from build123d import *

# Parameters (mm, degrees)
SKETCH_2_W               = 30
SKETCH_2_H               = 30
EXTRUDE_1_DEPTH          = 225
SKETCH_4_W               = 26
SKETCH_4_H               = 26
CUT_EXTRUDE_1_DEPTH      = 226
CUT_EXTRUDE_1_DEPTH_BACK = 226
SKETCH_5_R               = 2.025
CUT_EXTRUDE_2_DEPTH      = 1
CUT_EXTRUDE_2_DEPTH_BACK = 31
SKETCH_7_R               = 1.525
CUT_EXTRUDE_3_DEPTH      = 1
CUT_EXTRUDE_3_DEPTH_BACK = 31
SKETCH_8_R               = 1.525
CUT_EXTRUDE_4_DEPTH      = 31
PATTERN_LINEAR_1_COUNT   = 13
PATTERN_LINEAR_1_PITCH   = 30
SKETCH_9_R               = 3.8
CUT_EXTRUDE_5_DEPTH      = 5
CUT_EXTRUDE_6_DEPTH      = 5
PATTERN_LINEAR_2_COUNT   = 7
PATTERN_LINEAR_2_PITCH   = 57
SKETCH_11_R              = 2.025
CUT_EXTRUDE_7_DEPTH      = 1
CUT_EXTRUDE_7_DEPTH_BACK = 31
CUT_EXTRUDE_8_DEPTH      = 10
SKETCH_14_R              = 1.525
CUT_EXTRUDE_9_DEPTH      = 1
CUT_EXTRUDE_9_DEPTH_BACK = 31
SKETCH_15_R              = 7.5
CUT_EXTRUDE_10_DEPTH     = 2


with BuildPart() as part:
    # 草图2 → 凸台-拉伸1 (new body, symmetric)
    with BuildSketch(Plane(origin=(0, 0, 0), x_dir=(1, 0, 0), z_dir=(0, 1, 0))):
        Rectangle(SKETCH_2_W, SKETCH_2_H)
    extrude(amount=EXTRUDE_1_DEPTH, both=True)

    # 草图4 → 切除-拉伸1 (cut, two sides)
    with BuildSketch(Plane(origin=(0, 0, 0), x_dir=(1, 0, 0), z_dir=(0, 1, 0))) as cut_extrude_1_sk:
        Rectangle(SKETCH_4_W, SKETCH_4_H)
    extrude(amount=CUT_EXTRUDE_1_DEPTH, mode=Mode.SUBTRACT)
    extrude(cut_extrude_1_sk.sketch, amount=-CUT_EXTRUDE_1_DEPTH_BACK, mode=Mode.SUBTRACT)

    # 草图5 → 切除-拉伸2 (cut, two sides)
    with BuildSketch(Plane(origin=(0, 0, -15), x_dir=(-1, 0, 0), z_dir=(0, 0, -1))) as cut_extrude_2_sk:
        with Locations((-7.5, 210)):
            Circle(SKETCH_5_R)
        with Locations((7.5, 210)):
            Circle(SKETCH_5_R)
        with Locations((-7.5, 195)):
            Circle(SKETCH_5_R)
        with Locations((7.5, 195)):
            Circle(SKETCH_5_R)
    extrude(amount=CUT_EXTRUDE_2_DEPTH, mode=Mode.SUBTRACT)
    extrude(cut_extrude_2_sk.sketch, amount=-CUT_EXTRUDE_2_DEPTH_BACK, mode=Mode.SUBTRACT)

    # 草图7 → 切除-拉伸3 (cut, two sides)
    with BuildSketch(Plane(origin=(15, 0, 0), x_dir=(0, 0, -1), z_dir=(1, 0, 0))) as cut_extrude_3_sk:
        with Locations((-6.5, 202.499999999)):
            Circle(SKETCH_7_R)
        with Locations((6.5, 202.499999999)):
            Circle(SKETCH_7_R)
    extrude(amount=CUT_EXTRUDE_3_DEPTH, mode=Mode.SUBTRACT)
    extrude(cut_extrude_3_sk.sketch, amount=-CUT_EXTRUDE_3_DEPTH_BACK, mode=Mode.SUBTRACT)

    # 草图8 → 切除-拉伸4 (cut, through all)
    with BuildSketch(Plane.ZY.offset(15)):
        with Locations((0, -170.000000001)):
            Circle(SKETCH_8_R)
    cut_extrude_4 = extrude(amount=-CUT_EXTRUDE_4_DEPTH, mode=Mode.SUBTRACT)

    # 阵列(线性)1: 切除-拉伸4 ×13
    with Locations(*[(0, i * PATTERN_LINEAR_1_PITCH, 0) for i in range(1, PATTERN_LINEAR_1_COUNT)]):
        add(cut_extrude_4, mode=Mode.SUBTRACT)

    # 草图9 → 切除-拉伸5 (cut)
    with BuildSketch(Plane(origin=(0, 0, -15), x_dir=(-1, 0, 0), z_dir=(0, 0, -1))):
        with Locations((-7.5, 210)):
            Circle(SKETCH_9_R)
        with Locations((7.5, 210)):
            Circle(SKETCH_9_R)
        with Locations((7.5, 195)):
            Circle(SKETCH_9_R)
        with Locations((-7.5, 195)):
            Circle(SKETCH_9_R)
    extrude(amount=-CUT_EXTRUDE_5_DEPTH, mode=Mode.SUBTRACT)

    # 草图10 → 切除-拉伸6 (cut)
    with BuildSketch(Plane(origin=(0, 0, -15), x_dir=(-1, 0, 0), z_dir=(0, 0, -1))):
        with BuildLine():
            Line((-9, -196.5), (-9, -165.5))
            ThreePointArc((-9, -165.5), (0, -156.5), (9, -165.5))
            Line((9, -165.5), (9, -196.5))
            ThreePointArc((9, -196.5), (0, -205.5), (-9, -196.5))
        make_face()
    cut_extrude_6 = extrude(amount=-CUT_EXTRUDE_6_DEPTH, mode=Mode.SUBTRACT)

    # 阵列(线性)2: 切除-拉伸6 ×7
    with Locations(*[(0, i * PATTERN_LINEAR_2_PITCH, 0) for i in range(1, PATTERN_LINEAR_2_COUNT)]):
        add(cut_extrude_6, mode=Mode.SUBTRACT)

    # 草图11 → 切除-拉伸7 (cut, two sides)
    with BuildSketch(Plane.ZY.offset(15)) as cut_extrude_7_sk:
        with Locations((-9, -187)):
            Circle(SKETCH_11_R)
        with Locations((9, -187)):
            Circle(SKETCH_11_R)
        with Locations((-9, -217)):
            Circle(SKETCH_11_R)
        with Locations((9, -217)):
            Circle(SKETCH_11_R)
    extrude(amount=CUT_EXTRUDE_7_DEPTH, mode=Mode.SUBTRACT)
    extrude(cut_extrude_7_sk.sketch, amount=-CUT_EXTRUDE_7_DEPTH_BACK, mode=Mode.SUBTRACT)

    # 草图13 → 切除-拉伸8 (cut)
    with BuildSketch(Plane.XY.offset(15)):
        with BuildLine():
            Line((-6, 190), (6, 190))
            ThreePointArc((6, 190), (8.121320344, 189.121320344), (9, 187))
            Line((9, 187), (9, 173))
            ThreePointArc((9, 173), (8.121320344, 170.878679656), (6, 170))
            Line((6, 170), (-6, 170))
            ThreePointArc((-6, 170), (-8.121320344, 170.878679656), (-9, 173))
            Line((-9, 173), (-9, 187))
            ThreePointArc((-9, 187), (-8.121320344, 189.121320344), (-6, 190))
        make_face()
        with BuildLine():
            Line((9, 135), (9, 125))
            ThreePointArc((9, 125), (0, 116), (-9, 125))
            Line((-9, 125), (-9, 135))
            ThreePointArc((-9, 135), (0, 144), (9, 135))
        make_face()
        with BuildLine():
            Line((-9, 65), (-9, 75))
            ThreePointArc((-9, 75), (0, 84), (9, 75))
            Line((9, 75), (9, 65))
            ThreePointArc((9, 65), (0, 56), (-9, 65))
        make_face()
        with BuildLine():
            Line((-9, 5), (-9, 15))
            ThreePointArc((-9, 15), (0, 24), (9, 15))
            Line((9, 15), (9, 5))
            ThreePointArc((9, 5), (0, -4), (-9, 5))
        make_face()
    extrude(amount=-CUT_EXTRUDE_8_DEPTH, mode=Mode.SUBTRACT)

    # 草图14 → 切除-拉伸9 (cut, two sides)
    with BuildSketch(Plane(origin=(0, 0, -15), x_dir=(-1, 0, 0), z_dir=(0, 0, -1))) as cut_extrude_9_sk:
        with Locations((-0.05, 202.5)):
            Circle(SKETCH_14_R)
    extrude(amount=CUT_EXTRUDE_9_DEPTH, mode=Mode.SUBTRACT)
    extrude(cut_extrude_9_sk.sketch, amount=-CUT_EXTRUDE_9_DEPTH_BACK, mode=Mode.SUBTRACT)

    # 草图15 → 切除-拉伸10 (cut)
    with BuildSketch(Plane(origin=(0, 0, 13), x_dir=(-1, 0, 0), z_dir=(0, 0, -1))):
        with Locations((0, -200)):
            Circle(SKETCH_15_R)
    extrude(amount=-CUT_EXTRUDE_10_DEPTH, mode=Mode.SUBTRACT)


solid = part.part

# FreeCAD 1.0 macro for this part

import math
import FreeCAD as App
import Part
import Sketcher
Q = App.Units.Quantity


def add_polygon(sketch, points):
    """Adds a closed chain of lines whose ends are joined by coincident constraints."""
    first, n = sketch.GeometryCount, len(points)
    for a, b in zip(points, points[1:] + points[:1]):
        sketch.addGeometry(Part.LineSegment(App.Vector(*a, 0), App.Vector(*b, 0)), False)
    for i in range(n):
        sketch.addConstraint(Sketcher.Constraint("Coincident", first + i, 2, first + (i + 1) % n, 1))

doc = App.newDocument("Part")
body = doc.addObject("PartDesign::Body", "Body")

# Sketch on XZ plane
sketch1 = body.newObject("Sketcher::SketchObject", "Sketch")
sketch1.AttachmentSupport = (doc.getObject("XZ_Plane"), [""])
sketch1.MapMode = "FlatFace"
add_polygon(sketch1, [(-15, -15), (-15, 15), (15, 15), (15, -15)])  # lines 0-3
sketch1.addConstraint([
    Sketcher.Constraint("Vertical", 0),
    Sketcher.Constraint("Horizontal", 1),
    Sketcher.Constraint("Vertical", 2),
    Sketcher.Constraint("Horizontal", 3),
    Sketcher.Constraint("Symmetric", 0, 2, 2, 2, -1, 1),
    Sketcher.Constraint("Equal", 3, 0),
    Sketcher.Constraint("DistanceX", 1, 1, 1, 2, Q("30 mm")),
])
pad1 = body.newObject("PartDesign::Pad", "Pad")
pad1.Profile = sketch1
pad1.Length = 450
pad1.Midplane = True

# Sketch on XZ plane
sketch2 = body.newObject("Sketcher::SketchObject", "Sketch001")
sketch2.AttachmentSupport = (doc.getObject("XZ_Plane"), [""])
sketch2.MapMode = "FlatFace"
add_polygon(sketch2, [(-13, -13), (-13, 13), (13, 13), (13, -13)])  # lines 0-3
sketch2.addConstraint([
    Sketcher.Constraint("Vertical", 0),
    Sketcher.Constraint("Horizontal", 1),
    Sketcher.Constraint("Vertical", 2),
    Sketcher.Constraint("Horizontal", 3),
    Sketcher.Constraint("Symmetric", 0, 2, 2, 2, -1, 1),
    Sketcher.Constraint("Equal", 3, 0),
    Sketcher.Constraint("DistanceX", 1, 1, 1, 2, Q("26 mm")),
])
pocket1 = body.newObject("PartDesign::Pocket", "Pocket")
pocket1.Profile = sketch2
pocket1.Type = "ThroughAll"
pocket1.Midplane = True

# Sketch on XY plane
sketch3 = body.newObject("Sketcher::SketchObject", "Sketch002")
sketch3.AttachmentSupport = (doc.getObject("XY_Plane"), [""])
sketch3.MapMode = "FlatFace"
sketch3.AttachmentOffset = App.Placement(App.Vector(0, 0, -15), App.Rotation())
sketch3.addGeometry([
    Part.Circle(App.Vector(7.5, 210, 0), App.Vector(0, 0, 1), 2.025),
    Part.Circle(App.Vector(-7.5, 210, 0), App.Vector(0, 0, 1), 2.025),
    Part.Circle(App.Vector(7.5, 195, 0), App.Vector(0, 0, 1), 2.025),
    Part.Circle(App.Vector(-7.5, 195, 0), App.Vector(0, 0, 1), 2.025),
], False)
sketch3.addConstraint([
    Sketcher.Constraint("Equal", 0, 1),
    Sketcher.Constraint("Equal", 1, 2),
    Sketcher.Constraint("Equal", 2, 3),
    Sketcher.Constraint("Symmetric", 0, 3, 1, 3, -2),
    Sketcher.Constraint("Symmetric", 2, 3, 3, 3, -2),
    Sketcher.Constraint("Vertical", 0, 3, 2, 3),
    Sketcher.Constraint("Diameter", 0, Q("4.05 mm")),
    Sketcher.Constraint("DistanceY", -1, 1, 0, 3, Q("210 mm")),
    Sketcher.Constraint("DistanceY", -1, 1, 2, 3, Q("195 mm")),
    Sketcher.Constraint("DistanceX", 1, 3, 0, 3, Q("15 mm")),
])
pocket2 = body.newObject("PartDesign::Pocket", "Pocket001")
pocket2.Profile = sketch3
pocket2.Type = "ThroughAll"
pocket2.Midplane = True

# Sketch on YZ plane
sketch4 = body.newObject("Sketcher::SketchObject", "Sketch003")
sketch4.AttachmentSupport = (doc.getObject("YZ_Plane"), [""])
sketch4.MapMode = "FlatFace"
sketch4.AttachmentOffset = App.Placement(App.Vector(0, 0, 15), App.Rotation())
sketch4.addGeometry([
    Part.Circle(App.Vector(202.5, 6.5, 0), App.Vector(0, 0, 1), 1.525),
    Part.Circle(App.Vector(202.5, -6.5, 0), App.Vector(0, 0, 1), 1.525),
], False)
sketch4.addConstraint([
    Sketcher.Constraint("Equal", 0, 1),
    Sketcher.Constraint("Symmetric", 0, 3, 1, 3, -1),
    Sketcher.Constraint("Diameter", 0, Q("3.05 mm")),
    Sketcher.Constraint("DistanceY", 1, 3, 0, 3, Q("13 mm")),
    Sketcher.Constraint("DistanceX", -1, 1, 0, 3, Q("202.5 mm")),
])
pocket3 = body.newObject("PartDesign::Pocket", "Pocket002")
pocket3.Profile = sketch4
pocket3.Type = "ThroughAll"
pocket3.Midplane = True

# Sketch on YZ plane
sketch5 = body.newObject("Sketcher::SketchObject", "Sketch004")
sketch5.AttachmentSupport = (doc.getObject("YZ_Plane"), [""])
sketch5.MapMode = "FlatFace"
sketch5.AttachmentOffset = App.Placement(App.Vector(0, 0, -15), App.Rotation())
sketch5.addGeometry(Part.Circle(App.Vector(-170, 0, 0), App.Vector(0, 0, 1), 1.525), False)
sketch5.addConstraint([
    Sketcher.Constraint("PointOnObject", 0, 3, -1),
    Sketcher.Constraint("Diameter", 0, Q("3.05 mm")),
    Sketcher.Constraint("DistanceX", 0, 3, -1, 1, Q("170 mm")),
])
pocket4 = body.newObject("PartDesign::Pocket", "Pocket003")
pocket4.Profile = sketch5
pocket4.Type = "ThroughAll"
pocket4.Reversed = True
doc.recompute()

linearpattern = body.newObject("PartDesign::LinearPattern", "LinearPattern")
linearpattern.Originals = [pocket4]
linearpattern.Direction = (doc.getObject("Y_Axis"), [""])
linearpattern.Mode = "offset"
linearpattern.Offset = 30
linearpattern.Occurrences = 13
body.Tip = linearpattern

# Sketch on XY plane
sketch6 = body.newObject("Sketcher::SketchObject", "Sketch005")
sketch6.AttachmentSupport = (doc.getObject("XY_Plane"), [""])
sketch6.MapMode = "FlatFace"
sketch6.AttachmentOffset = App.Placement(App.Vector(0, 0, -15), App.Rotation())
sketch6.addGeometry([
    Part.Circle(App.Vector(7.5, 210, 0), App.Vector(0, 0, 1), 3.8),
    Part.Circle(App.Vector(-7.5, 210, 0), App.Vector(0, 0, 1), 3.8),
    Part.Circle(App.Vector(-7.5, 195, 0), App.Vector(0, 0, 1), 3.8),
    Part.Circle(App.Vector(7.5, 195, 0), App.Vector(0, 0, 1), 3.8),
], False)
sketch6.addConstraint([
    Sketcher.Constraint("Equal", 0, 1),
    Sketcher.Constraint("Equal", 1, 2),
    Sketcher.Constraint("Equal", 2, 3),
    Sketcher.Constraint("Symmetric", 0, 3, 1, 3, -2),
    Sketcher.Constraint("Symmetric", 2, 3, 3, 3, -2),
    Sketcher.Constraint("Vertical", 1, 3, 2, 3),
    Sketcher.Constraint("Diameter", 0, Q("7.6 mm")),
    Sketcher.Constraint("DistanceY", -1, 1, 0, 3, Q("210 mm")),
    Sketcher.Constraint("DistanceY", -1, 1, 2, 3, Q("195 mm")),
    Sketcher.Constraint("DistanceX", 1, 3, 0, 3, Q("15 mm")),
])
pocket5 = body.newObject("PartDesign::Pocket", "Pocket004")
pocket5.Profile = sketch6
pocket5.Length = 5
pocket5.Reversed = True

# Sketch on XY plane
sketch7 = body.newObject("Sketcher::SketchObject", "Sketch006")
sketch7.AttachmentSupport = (doc.getObject("XY_Plane"), [""])
sketch7.MapMode = "FlatFace"
sketch7.AttachmentOffset = App.Placement(App.Vector(0, 0, -15), App.Rotation())
sketch7.addGeometry([
    Part.LineSegment(App.Vector(9, -165.5, 0), App.Vector(9, -196.5, 0)),
    Part.ArcOfCircle(Part.Circle(App.Vector(0, -196.5, 0), App.Vector(0, 0, 1), 9), math.radians(180), math.radians(360)),
    Part.LineSegment(App.Vector(-9, -196.5, 0), App.Vector(-9, -165.5, 0)),
    Part.ArcOfCircle(Part.Circle(App.Vector(0, -165.5, 0), App.Vector(0, 0, 1), 9), math.radians(0), math.radians(180)),
], False)
sketch7.addConstraint([
    Sketcher.Constraint("Tangent", 0, 2, 1, 2),
    Sketcher.Constraint("Tangent", 1, 1, 2, 1),
    Sketcher.Constraint("Tangent", 2, 2, 3, 2),
    Sketcher.Constraint("Tangent", 3, 1, 0, 1),
    Sketcher.Constraint("Vertical", 0),
    Sketcher.Constraint("Vertical", 2),
    Sketcher.Constraint("PointOnObject", 1, 3, -2),
    Sketcher.Constraint("Radius", 1, Q("9 mm")),
    Sketcher.Constraint("DistanceY", 0, 2, 0, 1, Q("31 mm")),
    Sketcher.Constraint("DistanceY", 1, 3, -1, 1, Q("196.5 mm")),
])
pocket6 = body.newObject("PartDesign::Pocket", "Pocket005")
pocket6.Profile = sketch7
pocket6.Length = 5
pocket6.Reversed = True
doc.recompute()

linearpattern2 = body.newObject("PartDesign::LinearPattern", "LinearPattern001")
linearpattern2.Originals = [pocket6]
linearpattern2.Direction = (doc.getObject("Y_Axis"), [""])
linearpattern2.Mode = "offset"
linearpattern2.Offset = 57
linearpattern2.Occurrences = 7
body.Tip = linearpattern2

# Sketch on YZ plane
sketch8 = body.newObject("Sketcher::SketchObject", "Sketch007")
sketch8.AttachmentSupport = (doc.getObject("YZ_Plane"), [""])
sketch8.MapMode = "FlatFace"
sketch8.AttachmentOffset = App.Placement(App.Vector(0, 0, -15), App.Rotation())
sketch8.addGeometry([
    Part.Circle(App.Vector(-187, -9, 0), App.Vector(0, 0, 1), 2.025),
    Part.Circle(App.Vector(-187, 9, 0), App.Vector(0, 0, 1), 2.025),
    Part.Circle(App.Vector(-217, -9, 0), App.Vector(0, 0, 1), 2.025),
    Part.Circle(App.Vector(-217, 9, 0), App.Vector(0, 0, 1), 2.025),
], False)
sketch8.addConstraint([
    Sketcher.Constraint("Equal", 0, 1),
    Sketcher.Constraint("Equal", 1, 2),
    Sketcher.Constraint("Equal", 2, 3),
    Sketcher.Constraint("Symmetric", 0, 3, 1, 3, -1),
    Sketcher.Constraint("Symmetric", 2, 3, 3, 3, -1),
    Sketcher.Constraint("Horizontal", 0, 3, 2, 3),
    Sketcher.Constraint("Diameter", 0, Q("4.05 mm")),
    Sketcher.Constraint("DistanceX", 0, 3, -1, 1, Q("187 mm")),
    Sketcher.Constraint("DistanceY", 0, 3, -1, 1, Q("9 mm")),
    Sketcher.Constraint("DistanceX", 2, 3, -1, 1, Q("217 mm")),
])
pocket7 = body.newObject("PartDesign::Pocket", "Pocket006")
pocket7.Profile = sketch8
pocket7.Type = "ThroughAll"
pocket7.Midplane = True

# Sketch on XY plane
sketch9 = body.newObject("Sketcher::SketchObject", "Sketch008")
sketch9.AttachmentSupport = (doc.getObject("XY_Plane"), [""])
sketch9.MapMode = "FlatFace"
sketch9.AttachmentOffset = App.Placement(App.Vector(0, 0, 15), App.Rotation())
sketch9.addGeometry([
    Part.LineSegment(App.Vector(6, 190, 0), App.Vector(-6, 190, 0)),  # 0
    Part.ArcOfCircle(Part.Circle(App.Vector(-6, 187, 0), App.Vector(0, 0, 1), 3), math.radians(90), math.radians(180)),  # 1
    Part.LineSegment(App.Vector(-9, 187, 0), App.Vector(-9, 173, 0)),  # 2
    Part.ArcOfCircle(Part.Circle(App.Vector(-6, 173, 0), App.Vector(0, 0, 1), 3), math.radians(180), math.radians(270)),  # 3
    Part.LineSegment(App.Vector(-6, 170, 0), App.Vector(6, 170, 0)),  # 4
    Part.ArcOfCircle(Part.Circle(App.Vector(6, 173, 0), App.Vector(0, 0, 1), 3), math.radians(-90), math.radians(0)),  # 5
    Part.LineSegment(App.Vector(9, 173, 0), App.Vector(9, 187, 0)),  # 6
    Part.ArcOfCircle(Part.Circle(App.Vector(6, 187, 0), App.Vector(0, 0, 1), 3), math.radians(0), math.radians(90)),  # 7
    Part.LineSegment(App.Vector(9, 125, 0), App.Vector(9, 135, 0)),  # 8
    Part.ArcOfCircle(Part.Circle(App.Vector(0, 135, 0), App.Vector(0, 0, 1), 9), math.radians(0), math.radians(180)),  # 9
    Part.LineSegment(App.Vector(-9, 135, 0), App.Vector(-9, 125, 0)),  # 10
    Part.ArcOfCircle(Part.Circle(App.Vector(0, 125, 0), App.Vector(0, 0, 1), 9), math.radians(180), math.radians(360)),  # 11
    Part.LineSegment(App.Vector(-9, 75, 0), App.Vector(-9, 65, 0)),  # 12
    Part.ArcOfCircle(Part.Circle(App.Vector(0, 65, 0), App.Vector(0, 0, 1), 9), math.radians(180), math.radians(360)),  # 13
    Part.LineSegment(App.Vector(9, 65, 0), App.Vector(9, 75, 0)),  # 14
    Part.ArcOfCircle(Part.Circle(App.Vector(0, 75, 0), App.Vector(0, 0, 1), 9), math.radians(0), math.radians(180)),  # 15
    Part.LineSegment(App.Vector(-9, 15, 0), App.Vector(-9, 5, 0)),  # 16
    Part.ArcOfCircle(Part.Circle(App.Vector(0, 5, 0), App.Vector(0, 0, 1), 9), math.radians(180), math.radians(360)),  # 17
    Part.LineSegment(App.Vector(9, 5, 0), App.Vector(9, 15, 0)),  # 18
    Part.ArcOfCircle(Part.Circle(App.Vector(0, 15, 0), App.Vector(0, 0, 1), 9), math.radians(0), math.radians(180)),  # 19
], False)
sketch9.addConstraint([
    Sketcher.Constraint("Tangent", 0, 2, 1, 1),
    Sketcher.Constraint("Tangent", 1, 2, 2, 1),
    Sketcher.Constraint("Tangent", 2, 2, 3, 1),
    Sketcher.Constraint("Tangent", 3, 2, 4, 1),
    Sketcher.Constraint("Tangent", 4, 2, 5, 1),
    Sketcher.Constraint("Tangent", 5, 2, 6, 1),
    Sketcher.Constraint("Tangent", 6, 2, 7, 1),
    Sketcher.Constraint("Tangent", 7, 2, 0, 1),
    Sketcher.Constraint("Tangent", 8, 2, 9, 1),
    Sketcher.Constraint("Tangent", 9, 2, 10, 1),
    Sketcher.Constraint("Tangent", 10, 2, 11, 1),
    Sketcher.Constraint("Tangent", 11, 2, 8, 1),
    Sketcher.Constraint("Tangent", 12, 2, 13, 1),
    Sketcher.Constraint("Tangent", 13, 2, 14, 1),
    Sketcher.Constraint("Tangent", 14, 2, 15, 1),
    Sketcher.Constraint("Tangent", 15, 2, 12, 1),
    Sketcher.Constraint("Tangent", 16, 2, 17, 1),
    Sketcher.Constraint("Tangent", 17, 2, 18, 1),
    Sketcher.Constraint("Tangent", 18, 2, 19, 1),
    Sketcher.Constraint("Tangent", 19, 2, 16, 1),
    Sketcher.Constraint("Horizontal", 0),
    Sketcher.Constraint("Vertical", 2),
    Sketcher.Constraint("Horizontal", 4),
    Sketcher.Constraint("Vertical", 6),
    Sketcher.Constraint("Vertical", 8),
    Sketcher.Constraint("Vertical", 10),
    Sketcher.Constraint("Vertical", 12),
    Sketcher.Constraint("Vertical", 14),
    Sketcher.Constraint("Vertical", 16),
    Sketcher.Constraint("Vertical", 18),
    Sketcher.Constraint("Equal", 1, 3),
    Sketcher.Constraint("Equal", 3, 5),
    Sketcher.Constraint("Equal", 5, 7),
    Sketcher.Constraint("Equal", 11, 13),
    Sketcher.Constraint("Equal", 15, 17),
    Sketcher.Constraint("PointOnObject", 9, 3, -2),
    Sketcher.Constraint("PointOnObject", 13, 3, -2),
    Sketcher.Constraint("PointOnObject", 17, 3, -2),
    Sketcher.Constraint("Vertical", 6, 2, 8, 2),
    Sketcher.Constraint("Vertical", 2, 2, 9, 2),
    Sketcher.Constraint("Equal", 10, 12),
    Sketcher.Constraint("Equal", 14, 16),
    Sketcher.Constraint("Radius", 1, Q("3 mm")),
    Sketcher.Constraint("Radius", 9, Q("9 mm")),
    Sketcher.Constraint("DistanceY", 2, 2, 2, 1, Q("14 mm")),
    Sketcher.Constraint("DistanceY", 8, 1, 8, 2, Q("10 mm")),
    Sketcher.Constraint("DistanceY", -1, 1, 1, 3, Q("187 mm")),
    Sketcher.Constraint("DistanceY", -1, 1, 9, 3, Q("135 mm")),
    Sketcher.Constraint("DistanceY", -1, 1, 13, 3, Q("65 mm")),
    Sketcher.Constraint("DistanceY", -1, 1, 17, 3, Q("5 mm")),
])
pocket8 = body.newObject("PartDesign::Pocket", "Pocket007")
pocket8.Profile = sketch9
pocket8.Length = 10

# Sketch on XY plane
sketch10 = body.newObject("Sketcher::SketchObject", "Sketch009")
sketch10.AttachmentSupport = (doc.getObject("XY_Plane"), [""])
sketch10.MapMode = "FlatFace"
sketch10.AttachmentOffset = App.Placement(App.Vector(0, 0, -15), App.Rotation())
sketch10.addGeometry(Part.Circle(App.Vector(0.05, 202.5, 0), App.Vector(0, 0, 1), 1.525), False)
sketch10.addConstraint([
    Sketcher.Constraint("Diameter", 0, Q("3.05 mm")),
    Sketcher.Constraint("DistanceY", -1, 1, 0, 3, Q("202.5 mm")),
    Sketcher.Constraint("DistanceX", -1, 1, 0, 3, Q("0.05 mm")),
])
pocket9 = body.newObject("PartDesign::Pocket", "Pocket008")
pocket9.Profile = sketch10
pocket9.Type = "ThroughAll"
pocket9.Midplane = True

# Sketch on XY plane
sketch11 = body.newObject("Sketcher::SketchObject", "Sketch010")
sketch11.AttachmentSupport = (doc.getObject("XY_Plane"), [""])
sketch11.MapMode = "FlatFace"
sketch11.AttachmentOffset = App.Placement(App.Vector(0, 0, 13), App.Rotation())
sketch11.addGeometry(Part.Circle(App.Vector(0, -200, 0), App.Vector(0, 0, 1), 7.5), False)
sketch11.addConstraint([
    Sketcher.Constraint("PointOnObject", 0, 3, -2),
    Sketcher.Constraint("Diameter", 0, Q("15 mm")),
    Sketcher.Constraint("DistanceY", 0, 3, -1, 1, Q("200 mm")),
])
pocket10 = body.newObject("PartDesign::Pocket", "Pocket009")
pocket10.Profile = sketch11
pocket10.Length = 2
pocket10.Reversed = True

doc.recompute()
